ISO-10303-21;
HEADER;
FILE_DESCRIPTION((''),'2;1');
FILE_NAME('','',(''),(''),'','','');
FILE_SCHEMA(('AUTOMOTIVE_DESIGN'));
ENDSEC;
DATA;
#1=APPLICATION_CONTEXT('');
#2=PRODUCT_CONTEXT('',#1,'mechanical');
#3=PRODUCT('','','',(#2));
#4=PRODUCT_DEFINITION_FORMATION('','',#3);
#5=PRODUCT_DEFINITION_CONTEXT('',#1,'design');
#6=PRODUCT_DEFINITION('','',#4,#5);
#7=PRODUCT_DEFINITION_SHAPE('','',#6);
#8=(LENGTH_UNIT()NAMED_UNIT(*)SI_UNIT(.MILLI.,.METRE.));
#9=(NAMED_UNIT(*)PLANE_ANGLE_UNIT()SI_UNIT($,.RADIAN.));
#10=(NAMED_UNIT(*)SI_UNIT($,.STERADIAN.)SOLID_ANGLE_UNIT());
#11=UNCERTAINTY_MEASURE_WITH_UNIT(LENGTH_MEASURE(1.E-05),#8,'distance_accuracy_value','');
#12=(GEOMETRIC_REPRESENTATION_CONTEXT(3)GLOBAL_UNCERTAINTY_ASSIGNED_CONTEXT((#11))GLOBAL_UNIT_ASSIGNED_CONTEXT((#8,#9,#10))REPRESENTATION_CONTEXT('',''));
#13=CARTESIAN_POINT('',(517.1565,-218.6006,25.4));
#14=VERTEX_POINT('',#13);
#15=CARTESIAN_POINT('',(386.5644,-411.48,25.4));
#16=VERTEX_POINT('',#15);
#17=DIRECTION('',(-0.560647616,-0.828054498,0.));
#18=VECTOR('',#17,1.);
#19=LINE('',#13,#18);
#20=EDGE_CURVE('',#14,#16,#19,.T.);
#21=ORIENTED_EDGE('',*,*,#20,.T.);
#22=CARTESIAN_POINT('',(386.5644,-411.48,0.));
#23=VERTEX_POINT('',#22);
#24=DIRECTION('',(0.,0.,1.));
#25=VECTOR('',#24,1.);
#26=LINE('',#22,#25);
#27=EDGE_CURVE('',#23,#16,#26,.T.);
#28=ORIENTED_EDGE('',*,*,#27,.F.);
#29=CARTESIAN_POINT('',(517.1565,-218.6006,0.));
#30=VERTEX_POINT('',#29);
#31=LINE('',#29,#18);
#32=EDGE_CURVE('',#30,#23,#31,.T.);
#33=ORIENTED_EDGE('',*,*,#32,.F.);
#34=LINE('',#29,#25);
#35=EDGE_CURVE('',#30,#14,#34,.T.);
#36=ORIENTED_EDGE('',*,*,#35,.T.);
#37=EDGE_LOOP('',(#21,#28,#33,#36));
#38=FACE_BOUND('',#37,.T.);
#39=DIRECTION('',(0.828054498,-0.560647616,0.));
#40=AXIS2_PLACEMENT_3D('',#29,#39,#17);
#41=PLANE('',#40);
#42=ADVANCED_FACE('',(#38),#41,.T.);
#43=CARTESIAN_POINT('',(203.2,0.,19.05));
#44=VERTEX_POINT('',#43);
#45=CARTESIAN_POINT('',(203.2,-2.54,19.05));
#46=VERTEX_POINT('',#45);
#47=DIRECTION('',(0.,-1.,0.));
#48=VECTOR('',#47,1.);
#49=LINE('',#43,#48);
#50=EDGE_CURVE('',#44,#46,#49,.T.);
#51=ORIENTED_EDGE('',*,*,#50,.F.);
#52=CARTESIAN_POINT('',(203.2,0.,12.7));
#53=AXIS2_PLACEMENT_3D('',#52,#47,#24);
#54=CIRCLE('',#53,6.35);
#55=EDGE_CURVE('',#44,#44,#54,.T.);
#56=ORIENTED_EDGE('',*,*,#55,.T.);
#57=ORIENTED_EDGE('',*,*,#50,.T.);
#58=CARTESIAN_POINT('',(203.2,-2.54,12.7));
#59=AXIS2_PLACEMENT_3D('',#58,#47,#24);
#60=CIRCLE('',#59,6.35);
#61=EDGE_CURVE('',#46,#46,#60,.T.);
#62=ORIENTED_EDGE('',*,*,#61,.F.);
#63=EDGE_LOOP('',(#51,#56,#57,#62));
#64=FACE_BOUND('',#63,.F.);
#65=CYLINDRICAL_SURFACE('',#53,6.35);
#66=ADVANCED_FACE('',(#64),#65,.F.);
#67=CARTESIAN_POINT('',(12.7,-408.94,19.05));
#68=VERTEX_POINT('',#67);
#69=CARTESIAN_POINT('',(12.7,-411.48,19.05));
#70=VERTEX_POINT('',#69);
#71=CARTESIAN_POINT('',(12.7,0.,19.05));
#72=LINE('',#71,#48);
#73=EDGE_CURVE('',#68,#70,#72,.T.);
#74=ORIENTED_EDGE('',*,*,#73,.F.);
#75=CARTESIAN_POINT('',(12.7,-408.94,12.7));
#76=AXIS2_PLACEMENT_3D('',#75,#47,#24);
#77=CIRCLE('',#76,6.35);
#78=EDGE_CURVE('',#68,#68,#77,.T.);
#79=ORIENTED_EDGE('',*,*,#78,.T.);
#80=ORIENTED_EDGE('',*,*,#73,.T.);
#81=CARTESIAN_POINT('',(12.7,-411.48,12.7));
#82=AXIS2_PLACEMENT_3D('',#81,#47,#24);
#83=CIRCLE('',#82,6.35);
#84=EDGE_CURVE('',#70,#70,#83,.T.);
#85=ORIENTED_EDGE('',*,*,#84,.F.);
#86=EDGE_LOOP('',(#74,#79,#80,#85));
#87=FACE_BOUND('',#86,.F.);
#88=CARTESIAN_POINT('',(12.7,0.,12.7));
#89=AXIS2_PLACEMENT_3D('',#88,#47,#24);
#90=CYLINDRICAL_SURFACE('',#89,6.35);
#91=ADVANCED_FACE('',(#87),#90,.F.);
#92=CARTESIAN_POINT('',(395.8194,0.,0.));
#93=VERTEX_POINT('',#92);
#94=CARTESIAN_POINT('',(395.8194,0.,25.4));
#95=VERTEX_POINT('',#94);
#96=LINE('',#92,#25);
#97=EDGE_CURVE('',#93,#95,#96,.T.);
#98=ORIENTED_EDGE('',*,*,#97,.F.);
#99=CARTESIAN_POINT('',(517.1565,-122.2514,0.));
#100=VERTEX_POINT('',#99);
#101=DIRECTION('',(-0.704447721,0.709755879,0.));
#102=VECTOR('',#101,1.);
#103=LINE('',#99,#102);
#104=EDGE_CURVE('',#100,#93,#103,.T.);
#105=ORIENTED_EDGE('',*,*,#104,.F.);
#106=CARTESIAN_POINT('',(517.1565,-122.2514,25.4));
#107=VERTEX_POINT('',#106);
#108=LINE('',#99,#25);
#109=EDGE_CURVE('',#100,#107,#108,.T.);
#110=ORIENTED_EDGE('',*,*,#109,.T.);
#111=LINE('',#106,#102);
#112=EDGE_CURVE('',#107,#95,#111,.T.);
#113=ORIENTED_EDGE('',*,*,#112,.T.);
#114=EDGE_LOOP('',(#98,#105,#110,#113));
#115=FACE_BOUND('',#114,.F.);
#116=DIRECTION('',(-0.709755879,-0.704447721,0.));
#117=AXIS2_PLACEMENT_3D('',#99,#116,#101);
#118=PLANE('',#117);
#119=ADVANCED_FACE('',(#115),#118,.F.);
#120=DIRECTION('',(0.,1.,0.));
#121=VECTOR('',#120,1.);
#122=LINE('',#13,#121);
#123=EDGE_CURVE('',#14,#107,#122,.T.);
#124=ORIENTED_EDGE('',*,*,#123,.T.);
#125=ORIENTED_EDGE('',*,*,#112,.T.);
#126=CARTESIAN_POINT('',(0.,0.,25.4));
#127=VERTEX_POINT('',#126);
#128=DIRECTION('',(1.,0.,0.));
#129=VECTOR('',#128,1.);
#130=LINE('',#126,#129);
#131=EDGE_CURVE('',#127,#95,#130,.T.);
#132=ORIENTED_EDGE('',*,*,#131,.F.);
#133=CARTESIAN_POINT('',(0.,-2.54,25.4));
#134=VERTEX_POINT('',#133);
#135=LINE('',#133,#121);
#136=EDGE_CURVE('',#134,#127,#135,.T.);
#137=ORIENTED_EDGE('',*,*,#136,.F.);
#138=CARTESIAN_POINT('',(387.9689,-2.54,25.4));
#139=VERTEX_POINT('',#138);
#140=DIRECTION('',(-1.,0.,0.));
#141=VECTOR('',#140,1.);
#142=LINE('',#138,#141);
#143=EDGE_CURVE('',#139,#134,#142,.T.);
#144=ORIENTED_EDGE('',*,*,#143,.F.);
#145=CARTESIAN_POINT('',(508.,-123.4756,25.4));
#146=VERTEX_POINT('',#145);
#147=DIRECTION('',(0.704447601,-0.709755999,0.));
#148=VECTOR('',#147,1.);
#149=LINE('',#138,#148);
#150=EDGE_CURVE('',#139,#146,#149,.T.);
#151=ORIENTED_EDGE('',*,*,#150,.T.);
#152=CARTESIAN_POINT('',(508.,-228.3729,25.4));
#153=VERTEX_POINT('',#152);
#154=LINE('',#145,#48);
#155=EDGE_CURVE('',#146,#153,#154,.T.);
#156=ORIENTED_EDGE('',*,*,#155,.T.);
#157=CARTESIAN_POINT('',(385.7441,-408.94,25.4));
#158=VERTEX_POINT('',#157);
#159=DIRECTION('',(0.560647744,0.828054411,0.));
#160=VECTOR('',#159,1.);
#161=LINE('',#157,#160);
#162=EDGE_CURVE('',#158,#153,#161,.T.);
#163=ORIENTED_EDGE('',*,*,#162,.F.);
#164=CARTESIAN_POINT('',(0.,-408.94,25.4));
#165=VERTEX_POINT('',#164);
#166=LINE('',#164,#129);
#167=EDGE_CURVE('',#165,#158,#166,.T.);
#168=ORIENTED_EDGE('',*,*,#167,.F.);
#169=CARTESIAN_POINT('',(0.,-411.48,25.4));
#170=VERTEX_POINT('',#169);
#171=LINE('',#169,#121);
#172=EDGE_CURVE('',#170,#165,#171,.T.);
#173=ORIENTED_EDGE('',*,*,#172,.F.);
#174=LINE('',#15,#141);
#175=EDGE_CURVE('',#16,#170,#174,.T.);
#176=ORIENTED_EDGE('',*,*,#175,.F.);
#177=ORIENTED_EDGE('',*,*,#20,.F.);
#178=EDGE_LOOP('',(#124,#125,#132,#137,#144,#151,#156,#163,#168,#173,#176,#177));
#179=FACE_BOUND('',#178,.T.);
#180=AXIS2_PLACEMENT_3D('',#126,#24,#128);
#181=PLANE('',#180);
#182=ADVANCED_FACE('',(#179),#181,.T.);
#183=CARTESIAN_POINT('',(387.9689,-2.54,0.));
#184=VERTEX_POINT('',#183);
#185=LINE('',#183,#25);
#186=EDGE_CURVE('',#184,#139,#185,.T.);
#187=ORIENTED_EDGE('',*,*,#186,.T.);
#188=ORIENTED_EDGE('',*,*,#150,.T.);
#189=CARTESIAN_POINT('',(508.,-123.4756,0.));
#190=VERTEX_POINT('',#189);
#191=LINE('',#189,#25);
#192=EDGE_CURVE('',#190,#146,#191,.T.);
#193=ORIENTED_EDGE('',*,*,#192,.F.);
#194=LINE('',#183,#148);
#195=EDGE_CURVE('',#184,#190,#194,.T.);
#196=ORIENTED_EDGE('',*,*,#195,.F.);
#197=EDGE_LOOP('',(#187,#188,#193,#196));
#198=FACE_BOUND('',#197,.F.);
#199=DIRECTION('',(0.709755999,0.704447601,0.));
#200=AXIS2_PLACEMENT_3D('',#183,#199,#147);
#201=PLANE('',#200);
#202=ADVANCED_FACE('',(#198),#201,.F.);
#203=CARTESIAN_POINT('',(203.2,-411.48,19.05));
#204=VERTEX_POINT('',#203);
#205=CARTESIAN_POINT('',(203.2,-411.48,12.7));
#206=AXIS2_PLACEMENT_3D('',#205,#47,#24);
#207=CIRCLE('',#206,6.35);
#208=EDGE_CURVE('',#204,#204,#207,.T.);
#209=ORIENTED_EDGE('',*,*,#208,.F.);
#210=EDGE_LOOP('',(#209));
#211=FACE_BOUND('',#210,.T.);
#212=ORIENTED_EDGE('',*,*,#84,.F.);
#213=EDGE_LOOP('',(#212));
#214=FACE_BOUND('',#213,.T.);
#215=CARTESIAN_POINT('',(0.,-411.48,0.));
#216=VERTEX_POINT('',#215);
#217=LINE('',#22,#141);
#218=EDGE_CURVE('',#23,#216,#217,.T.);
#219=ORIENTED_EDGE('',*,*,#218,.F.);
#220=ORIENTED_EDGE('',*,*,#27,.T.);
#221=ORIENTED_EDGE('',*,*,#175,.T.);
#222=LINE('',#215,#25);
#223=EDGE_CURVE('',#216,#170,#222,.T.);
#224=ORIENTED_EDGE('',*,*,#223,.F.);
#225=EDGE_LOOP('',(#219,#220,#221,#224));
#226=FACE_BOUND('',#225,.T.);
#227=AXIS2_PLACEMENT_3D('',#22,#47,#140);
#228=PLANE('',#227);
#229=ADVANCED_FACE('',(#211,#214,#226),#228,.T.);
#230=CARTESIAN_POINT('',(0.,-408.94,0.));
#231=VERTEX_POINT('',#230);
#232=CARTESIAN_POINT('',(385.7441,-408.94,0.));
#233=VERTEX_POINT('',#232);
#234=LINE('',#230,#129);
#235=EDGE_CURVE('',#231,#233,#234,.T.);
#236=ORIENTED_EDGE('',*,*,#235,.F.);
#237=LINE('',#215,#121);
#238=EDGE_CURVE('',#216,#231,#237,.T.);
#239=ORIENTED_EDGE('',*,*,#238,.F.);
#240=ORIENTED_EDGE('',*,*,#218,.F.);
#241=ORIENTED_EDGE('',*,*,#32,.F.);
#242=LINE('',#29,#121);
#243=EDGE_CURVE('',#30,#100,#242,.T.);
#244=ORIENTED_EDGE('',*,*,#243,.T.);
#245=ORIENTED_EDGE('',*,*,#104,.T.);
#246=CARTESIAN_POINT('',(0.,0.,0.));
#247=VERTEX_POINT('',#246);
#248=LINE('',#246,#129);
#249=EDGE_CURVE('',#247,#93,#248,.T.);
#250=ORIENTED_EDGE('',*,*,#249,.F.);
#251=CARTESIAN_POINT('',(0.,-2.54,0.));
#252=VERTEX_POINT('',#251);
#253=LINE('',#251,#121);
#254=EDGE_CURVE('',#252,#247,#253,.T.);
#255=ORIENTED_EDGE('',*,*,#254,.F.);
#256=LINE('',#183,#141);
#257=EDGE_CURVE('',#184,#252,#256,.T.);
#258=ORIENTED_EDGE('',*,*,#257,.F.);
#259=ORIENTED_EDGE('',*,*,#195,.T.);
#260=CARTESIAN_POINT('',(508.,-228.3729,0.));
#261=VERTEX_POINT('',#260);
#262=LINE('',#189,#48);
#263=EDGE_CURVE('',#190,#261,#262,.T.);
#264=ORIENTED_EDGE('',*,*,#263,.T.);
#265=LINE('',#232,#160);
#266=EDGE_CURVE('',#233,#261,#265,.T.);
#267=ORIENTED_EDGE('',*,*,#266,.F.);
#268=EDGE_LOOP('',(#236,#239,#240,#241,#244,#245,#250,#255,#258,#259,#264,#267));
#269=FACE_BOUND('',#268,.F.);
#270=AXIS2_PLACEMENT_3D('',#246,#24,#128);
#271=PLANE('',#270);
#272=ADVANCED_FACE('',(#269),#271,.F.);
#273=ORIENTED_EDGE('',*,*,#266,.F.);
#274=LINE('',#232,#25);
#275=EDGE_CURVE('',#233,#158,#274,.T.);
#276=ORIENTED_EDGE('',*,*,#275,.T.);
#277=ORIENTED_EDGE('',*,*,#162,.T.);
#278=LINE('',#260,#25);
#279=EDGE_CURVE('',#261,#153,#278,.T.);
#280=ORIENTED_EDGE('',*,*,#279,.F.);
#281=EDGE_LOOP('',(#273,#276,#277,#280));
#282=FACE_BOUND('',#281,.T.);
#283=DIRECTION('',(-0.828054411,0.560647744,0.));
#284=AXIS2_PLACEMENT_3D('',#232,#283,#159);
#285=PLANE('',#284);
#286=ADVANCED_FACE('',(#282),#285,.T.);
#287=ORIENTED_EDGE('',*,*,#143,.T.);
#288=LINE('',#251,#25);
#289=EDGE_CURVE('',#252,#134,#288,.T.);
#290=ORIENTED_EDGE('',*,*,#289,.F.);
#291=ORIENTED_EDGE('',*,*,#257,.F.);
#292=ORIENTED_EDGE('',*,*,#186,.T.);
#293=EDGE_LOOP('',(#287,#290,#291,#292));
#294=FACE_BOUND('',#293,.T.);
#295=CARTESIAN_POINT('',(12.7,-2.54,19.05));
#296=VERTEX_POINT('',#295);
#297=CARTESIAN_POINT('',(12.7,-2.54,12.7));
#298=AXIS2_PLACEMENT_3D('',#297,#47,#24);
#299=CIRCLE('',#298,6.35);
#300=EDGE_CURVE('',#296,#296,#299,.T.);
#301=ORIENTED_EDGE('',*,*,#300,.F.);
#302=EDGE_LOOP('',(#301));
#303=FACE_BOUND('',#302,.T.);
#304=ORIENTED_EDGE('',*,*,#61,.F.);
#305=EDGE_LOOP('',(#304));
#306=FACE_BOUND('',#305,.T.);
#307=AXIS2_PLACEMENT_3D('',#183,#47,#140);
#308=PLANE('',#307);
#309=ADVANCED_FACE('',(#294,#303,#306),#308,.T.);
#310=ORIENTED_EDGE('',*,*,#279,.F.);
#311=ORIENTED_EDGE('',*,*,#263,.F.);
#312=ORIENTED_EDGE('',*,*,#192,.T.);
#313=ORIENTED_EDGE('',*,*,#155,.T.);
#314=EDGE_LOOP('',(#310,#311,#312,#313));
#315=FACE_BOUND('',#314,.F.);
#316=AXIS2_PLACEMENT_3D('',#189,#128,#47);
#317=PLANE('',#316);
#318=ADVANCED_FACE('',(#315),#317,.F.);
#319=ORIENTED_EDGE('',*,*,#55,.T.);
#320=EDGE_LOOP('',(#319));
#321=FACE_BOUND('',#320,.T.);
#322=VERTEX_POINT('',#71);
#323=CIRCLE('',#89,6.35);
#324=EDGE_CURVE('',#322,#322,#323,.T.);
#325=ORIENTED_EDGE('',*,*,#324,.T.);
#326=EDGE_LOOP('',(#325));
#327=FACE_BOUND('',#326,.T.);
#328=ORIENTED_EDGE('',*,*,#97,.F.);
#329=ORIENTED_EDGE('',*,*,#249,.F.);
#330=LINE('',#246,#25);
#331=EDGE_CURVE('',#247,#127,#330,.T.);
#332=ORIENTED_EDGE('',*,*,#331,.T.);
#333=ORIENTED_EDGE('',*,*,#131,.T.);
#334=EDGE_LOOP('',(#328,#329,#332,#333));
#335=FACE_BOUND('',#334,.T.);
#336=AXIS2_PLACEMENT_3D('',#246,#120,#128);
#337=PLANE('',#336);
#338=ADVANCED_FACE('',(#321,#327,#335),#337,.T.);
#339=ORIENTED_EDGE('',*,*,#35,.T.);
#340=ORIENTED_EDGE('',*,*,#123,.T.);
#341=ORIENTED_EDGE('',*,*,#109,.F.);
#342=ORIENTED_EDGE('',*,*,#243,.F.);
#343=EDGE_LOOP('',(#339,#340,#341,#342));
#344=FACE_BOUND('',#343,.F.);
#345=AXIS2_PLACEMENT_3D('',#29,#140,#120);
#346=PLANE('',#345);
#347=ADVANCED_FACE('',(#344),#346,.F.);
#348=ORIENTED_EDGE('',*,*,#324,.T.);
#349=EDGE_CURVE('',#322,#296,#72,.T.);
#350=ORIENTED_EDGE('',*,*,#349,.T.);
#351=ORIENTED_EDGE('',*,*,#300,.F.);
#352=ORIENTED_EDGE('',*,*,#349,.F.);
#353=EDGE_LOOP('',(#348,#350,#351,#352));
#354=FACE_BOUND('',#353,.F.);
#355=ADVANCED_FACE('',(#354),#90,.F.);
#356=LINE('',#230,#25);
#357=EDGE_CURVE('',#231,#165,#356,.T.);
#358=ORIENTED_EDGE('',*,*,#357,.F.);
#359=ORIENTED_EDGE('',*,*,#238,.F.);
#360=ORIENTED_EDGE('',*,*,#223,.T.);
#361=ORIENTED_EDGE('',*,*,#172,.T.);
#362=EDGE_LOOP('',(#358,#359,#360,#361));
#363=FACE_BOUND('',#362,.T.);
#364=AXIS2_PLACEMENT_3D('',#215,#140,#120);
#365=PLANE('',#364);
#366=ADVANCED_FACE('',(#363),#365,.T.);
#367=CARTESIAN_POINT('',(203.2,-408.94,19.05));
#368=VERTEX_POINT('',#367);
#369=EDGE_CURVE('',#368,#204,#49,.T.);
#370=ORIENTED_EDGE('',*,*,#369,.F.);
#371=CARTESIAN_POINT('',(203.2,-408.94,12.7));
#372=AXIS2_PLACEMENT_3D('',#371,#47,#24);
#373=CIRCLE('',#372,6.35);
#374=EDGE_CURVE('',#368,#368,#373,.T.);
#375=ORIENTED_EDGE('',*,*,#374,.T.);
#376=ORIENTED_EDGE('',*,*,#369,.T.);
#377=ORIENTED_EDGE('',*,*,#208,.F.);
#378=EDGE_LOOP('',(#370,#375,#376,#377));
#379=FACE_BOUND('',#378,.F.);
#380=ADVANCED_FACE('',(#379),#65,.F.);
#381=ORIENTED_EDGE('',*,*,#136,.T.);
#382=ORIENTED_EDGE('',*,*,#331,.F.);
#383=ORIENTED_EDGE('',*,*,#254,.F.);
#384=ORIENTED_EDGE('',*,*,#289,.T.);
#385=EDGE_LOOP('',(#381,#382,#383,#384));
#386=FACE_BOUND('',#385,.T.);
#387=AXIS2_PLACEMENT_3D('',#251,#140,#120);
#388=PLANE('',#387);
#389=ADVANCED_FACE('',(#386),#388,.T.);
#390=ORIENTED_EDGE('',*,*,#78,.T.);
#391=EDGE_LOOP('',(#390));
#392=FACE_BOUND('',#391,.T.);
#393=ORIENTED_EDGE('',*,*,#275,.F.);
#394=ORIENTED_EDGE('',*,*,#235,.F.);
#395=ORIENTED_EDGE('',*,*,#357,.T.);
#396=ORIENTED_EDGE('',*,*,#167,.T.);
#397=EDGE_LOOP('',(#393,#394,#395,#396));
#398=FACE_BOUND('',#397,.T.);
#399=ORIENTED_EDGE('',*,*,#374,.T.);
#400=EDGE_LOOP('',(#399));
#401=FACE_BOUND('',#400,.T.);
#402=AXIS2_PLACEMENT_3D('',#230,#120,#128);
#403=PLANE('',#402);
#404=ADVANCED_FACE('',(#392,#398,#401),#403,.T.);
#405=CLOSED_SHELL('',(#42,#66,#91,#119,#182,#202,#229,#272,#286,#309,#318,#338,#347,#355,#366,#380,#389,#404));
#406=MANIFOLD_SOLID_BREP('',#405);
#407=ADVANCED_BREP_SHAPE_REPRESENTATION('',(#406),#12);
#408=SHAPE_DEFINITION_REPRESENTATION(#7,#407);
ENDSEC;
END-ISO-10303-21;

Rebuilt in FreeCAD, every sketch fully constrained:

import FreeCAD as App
import Part
import Sketcher
from FreeCAD import Vector
Q = App.Units.Quantity

doc = App.newDocument("Part")
body = doc.addObject("PartDesign::Body", "Body")

# Sketch on XY plane
sketch1 = body.newObject("Sketcher::SketchObject", "Sketch")
sketch1.AttachmentSupport = (doc.getObject("XY_Plane"), [""])
sketch1.MapMode = "FlatFace"
sketch1.addGeometry(Part.LineSegment(Vector(395.8194, 0, 0), Vector(0, 0, 0)), False)
sketch1.addGeometry(Part.LineSegment(Vector(0, 0, 0), Vector(0, -2.54, 0)), False)
sketch1.addGeometry(Part.LineSegment(Vector(0, -2.54, 0), Vector(387.9689, -2.54, 0)), False)
sketch1.addGeometry(Part.LineSegment(Vector(387.9689, -2.54, 0), Vector(508, -123.4756, 0)), False)
sketch1.addGeometry(Part.LineSegment(Vector(508, -123.4756, 0), Vector(508, -228.3729, 0)), False)
sketch1.addGeometry(Part.LineSegment(Vector(508, -228.3729, 0), Vector(385.7441, -408.94, 0)), False)
sketch1.addGeometry(Part.LineSegment(Vector(385.7441, -408.94, 0), Vector(0, -408.94, 0)), False)
sketch1.addGeometry(Part.LineSegment(Vector(0, -408.94, 0), Vector(0, -411.48, 0)), False)
sketch1.addGeometry(Part.LineSegment(Vector(0, -411.48, 0), Vector(386.5644, -411.48, 0)), False)
sketch1.addGeometry(Part.LineSegment(Vector(386.5644, -411.48, 0), Vector(517.1565, -218.6006, 0)), False)
sketch1.addGeometry(Part.LineSegment(Vector(517.1565, -218.6006, 0), Vector(517.1565, -122.2514, 0)), False)
sketch1.addGeometry(Part.LineSegment(Vector(517.1565, -122.2514, 0), Vector(395.8194, 0, 0)), False)
sketch1.addConstraint(Sketcher.Constraint("Coincident", 0, 2, 1, 1))
sketch1.addConstraint(Sketcher.Constraint("Coincident", 1, 2, 2, 1))
sketch1.addConstraint(Sketcher.Constraint("Coincident", 2, 2, 3, 1))
sketch1.addConstraint(Sketcher.Constraint("Coincident", 3, 2, 4, 1))
sketch1.addConstraint(Sketcher.Constraint("Coincident", 4, 2, 5, 1))
sketch1.addConstraint(Sketcher.Constraint("Coincident", 5, 2, 6, 1))
sketch1.addConstraint(Sketcher.Constraint("Coincident", 6, 2, 7, 1))
sketch1.addConstraint(Sketcher.Constraint("Coincident", 7, 2, 8, 1))
sketch1.addConstraint(Sketcher.Constraint("Coincident", 8, 2, 9, 1))
sketch1.addConstraint(Sketcher.Constraint("Coincident", 9, 2, 10, 1))
sketch1.addConstraint(Sketcher.Constraint("Coincident", 10, 2, 11, 1))
sketch1.addConstraint(Sketcher.Constraint("Coincident", 11, 2, 0, 1))
sketch1.addConstraint(Sketcher.Constraint("Horizontal", 0))
sketch1.addConstraint(Sketcher.Constraint("Vertical", 1))
sketch1.addConstraint(Sketcher.Constraint("Horizontal", 2))
sketch1.addConstraint(Sketcher.Constraint("Vertical", 4))
sketch1.addConstraint(Sketcher.Constraint("Horizontal", 6))
sketch1.addConstraint(Sketcher.Constraint("Vertical", 7))
sketch1.addConstraint(Sketcher.Constraint("Horizontal", 8))
sketch1.addConstraint(Sketcher.Constraint("Vertical", 10))
sketch1.addConstraint(Sketcher.Constraint("Coincident", 0, 2, -1, 1))
sketch1.addConstraint(Sketcher.Constraint("PointOnObject", 6, 2, -2))
sketch1.addConstraint(Sketcher.Constraint("Parallel", 5, 9))
sketch1.addConstraint(Sketcher.Constraint("Parallel", 3, 11))
sketch1.addConstraint(Sketcher.Constraint("Equal", 1, 7))
sketch1.addConstraint(Sketcher.Constraint("DistanceY", 1, 2, 1, 1, Q("0.1 in")))
sketch1.addConstraint(Sketcher.Constraint("DistanceX", -1, 1, 3, 2, Q("20 in")))
sketch1.addConstraint(Sketcher.Constraint("DistanceY", 5, 2, 2, 2, Q("16 in")))
sketch1.addConstraint(Sketcher.Constraint("Angle", 5, Q("-124.1006 deg")))
sketch1.addConstraint(Sketcher.Constraint("DistanceY", 4, 2, 10, 2, Q("4.178 in")))
sketch1.addConstraint(Sketcher.Constraint("Distance", 9, Q("9.1705 in")))
sketch1.addConstraint(Sketcher.Constraint("DistanceX", 0, 2, 0, 1, Q("395.8194 mm")))
sketch1.addConstraint(Sketcher.Constraint("DistanceX", 2, 1, 2, 2, Q("387.969 mm")))
sketch1.addConstraint(Sketcher.Constraint("DistanceX", 6, 2, 6, 1, Q("385.744 mm")))
sketch1.addConstraint(Sketcher.Constraint("DistanceX", 8, 1, 8, 2, Q("386.5644 mm")))
pad1 = body.newObject("PartDesign::Pad", "Pad")
pad1.Profile = sketch1
pad1.Length = Q("1 in")

# Sketch on XZ plane
sketch2 = body.newObject("Sketcher::SketchObject", "Sketch001")
sketch2.AttachmentSupport = (doc.getObject("XZ_Plane"), [""])
sketch2.MapMode = "FlatFace"
sketch2.addGeometry(Part.Circle(Vector(12.7, 12.7, 0), Vector(0, 0, 1), 6.35), False)
sketch2.addConstraint(Sketcher.Constraint("Diameter", 0, Q("0.5 in")))
sketch2.addConstraint(Sketcher.Constraint("DistanceX", -1, 1, 0, 3, Q("0.5 in")))
sketch2.addConstraint(Sketcher.Constraint("DistanceY", -1, 1, 0, 3, Q("0.5 in")))
doc.recompute()
hole = body.newObject("PartDesign::Hole", "Hole")
hole.Profile = sketch2
hole.ThreadType = "None"
hole.Diameter = Q("0.5 in")
hole.DepthType = "ThroughAll"
hole.Reversed = True

# Sketch on XZ plane
sketch3 = body.newObject("Sketcher::SketchObject", "Sketch002")
sketch3.AttachmentSupport = (doc.getObject("XZ_Plane"), [""])
sketch3.MapMode = "FlatFace"
sketch3.addGeometry(Part.Circle(Vector(203.2, 12.7, 0), Vector(0, 0, 1), 6.35), False)
sketch3.addConstraint(Sketcher.Constraint("Diameter", 0, Q("0.5 in")))
sketch3.addConstraint(Sketcher.Constraint("DistanceX", -1, 1, 0, 3, Q("8 in")))
sketch3.addConstraint(Sketcher.Constraint("DistanceY", -1, 1, 0, 3, Q("0.5 in")))
doc.recompute()
hole2 = body.newObject("PartDesign::Hole", "Hole001")
hole2.Profile = sketch3
hole2.ThreadType = "None"
hole2.Diameter = Q("0.5 in")
hole2.DepthType = "ThroughAll"
hole2.Reversed = True

doc.recompute()
